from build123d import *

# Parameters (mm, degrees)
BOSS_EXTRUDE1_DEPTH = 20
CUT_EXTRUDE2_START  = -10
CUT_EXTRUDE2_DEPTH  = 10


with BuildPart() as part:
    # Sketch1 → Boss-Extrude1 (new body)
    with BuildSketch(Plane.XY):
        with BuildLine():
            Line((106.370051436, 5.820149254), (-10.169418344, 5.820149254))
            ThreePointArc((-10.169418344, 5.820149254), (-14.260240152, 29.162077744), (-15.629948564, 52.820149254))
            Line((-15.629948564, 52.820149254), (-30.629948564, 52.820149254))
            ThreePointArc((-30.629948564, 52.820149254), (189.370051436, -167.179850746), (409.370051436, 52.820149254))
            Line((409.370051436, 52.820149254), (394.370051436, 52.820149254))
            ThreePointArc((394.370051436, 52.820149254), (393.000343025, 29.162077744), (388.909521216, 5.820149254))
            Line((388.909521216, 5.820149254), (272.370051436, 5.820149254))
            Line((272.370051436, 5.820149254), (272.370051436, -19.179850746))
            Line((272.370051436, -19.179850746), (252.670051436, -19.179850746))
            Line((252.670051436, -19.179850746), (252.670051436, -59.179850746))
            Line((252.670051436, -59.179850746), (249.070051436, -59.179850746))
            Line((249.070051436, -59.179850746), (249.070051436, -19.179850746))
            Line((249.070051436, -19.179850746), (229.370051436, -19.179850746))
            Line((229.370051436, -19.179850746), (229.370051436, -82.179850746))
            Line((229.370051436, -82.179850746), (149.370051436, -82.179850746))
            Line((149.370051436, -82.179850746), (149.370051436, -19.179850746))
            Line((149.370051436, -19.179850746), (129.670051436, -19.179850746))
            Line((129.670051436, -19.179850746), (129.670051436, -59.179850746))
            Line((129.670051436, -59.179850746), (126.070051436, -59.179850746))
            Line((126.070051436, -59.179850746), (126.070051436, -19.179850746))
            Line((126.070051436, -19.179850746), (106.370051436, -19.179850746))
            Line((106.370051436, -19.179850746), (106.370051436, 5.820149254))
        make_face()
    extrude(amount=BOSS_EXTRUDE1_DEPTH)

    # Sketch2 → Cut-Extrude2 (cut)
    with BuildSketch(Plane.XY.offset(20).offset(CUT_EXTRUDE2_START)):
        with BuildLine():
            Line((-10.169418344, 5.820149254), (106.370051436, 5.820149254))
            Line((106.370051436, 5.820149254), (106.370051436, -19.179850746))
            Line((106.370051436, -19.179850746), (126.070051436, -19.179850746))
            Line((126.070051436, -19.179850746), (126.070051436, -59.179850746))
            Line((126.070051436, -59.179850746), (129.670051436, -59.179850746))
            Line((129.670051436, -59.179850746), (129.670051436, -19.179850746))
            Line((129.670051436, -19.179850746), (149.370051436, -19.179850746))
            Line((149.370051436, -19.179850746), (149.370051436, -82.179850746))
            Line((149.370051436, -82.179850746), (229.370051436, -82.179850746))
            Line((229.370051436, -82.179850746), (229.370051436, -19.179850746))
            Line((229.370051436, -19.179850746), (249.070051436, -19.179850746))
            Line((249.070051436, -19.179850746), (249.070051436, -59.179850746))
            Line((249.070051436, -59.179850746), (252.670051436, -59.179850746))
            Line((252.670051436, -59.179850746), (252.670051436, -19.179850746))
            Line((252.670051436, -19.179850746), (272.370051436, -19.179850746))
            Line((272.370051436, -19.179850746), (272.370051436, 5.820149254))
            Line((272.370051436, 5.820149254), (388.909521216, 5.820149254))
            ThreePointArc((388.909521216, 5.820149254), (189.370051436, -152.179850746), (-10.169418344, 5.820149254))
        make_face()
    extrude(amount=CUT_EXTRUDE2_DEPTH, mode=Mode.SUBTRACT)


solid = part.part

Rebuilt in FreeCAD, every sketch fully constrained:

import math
import FreeCAD as App
import Part
import Sketcher
from FreeCAD import Vector

doc = App.newDocument("Part")
body = doc.addObject("PartDesign::Body", "Body")

sketch1 = body.newObject("Sketcher::SketchObject", "Sketch")
sketch1.AttachmentSupport = (doc.getObject("XY_Plane"), [""])
sketch1.MapMode = "FlatFace"
sketch1.addGeometry([
    Part.LineSegment(Vector(106.4, 5.8, 0), Vector(-10.2, 5.8, 0)),
    Part.ArcOfCircle(Part.Circle(Vector(189.4, 52.8, 0), Vector(0, 0, 1), 205), math.radians(-180), math.radians(-166.75)),
    Part.LineSegment(Vector(-15.6, 52.8, 0), Vector(-30.6, 52.8, 0)),
    Part.ArcOfCircle(Part.Circle(Vector(189.4, 52.8, 0), Vector(0, 0, 1), 220), math.radians(180), math.radians(360)),
    Part.LineSegment(Vector(409.4, 52.8, 0), Vector(394.4, 52.8, 0)),
    Part.ArcOfCircle(Part.Circle(Vector(189.4, 52.8, 0), Vector(0, 0, 1), 205), math.radians(-13.25), math.radians(0)),
    Part.LineSegment(Vector(388.9, 5.8, 0), Vector(272.4, 5.8, 0)),
    Part.LineSegment(Vector(272.4, 5.8, 0), Vector(272.4, -19.2, 0)),
    Part.LineSegment(Vector(272.4, -19.2, 0), Vector(252.7, -19.2, 0)),
    Part.LineSegment(Vector(252.7, -19.2, 0), Vector(252.7, -59.2, 0)),
    Part.LineSegment(Vector(252.7, -59.2, 0), Vector(249.1, -59.2, 0)),
    Part.LineSegment(Vector(249.1, -59.2, 0), Vector(249.1, -19.2, 0)),
    Part.LineSegment(Vector(249.1, -19.2, 0), Vector(229.4, -19.2, 0)),
    Part.LineSegment(Vector(229.4, -19.2, 0), Vector(229.4, -82.2, 0)),
    Part.LineSegment(Vector(229.4, -82.2, 0), Vector(149.4, -82.2, 0)),
    Part.LineSegment(Vector(149.4, -82.2, 0), Vector(149.4, -19.2, 0)),
    Part.LineSegment(Vector(149.4, -19.2, 0), Vector(129.7, -19.2, 0)),
    Part.LineSegment(Vector(129.7, -19.2, 0), Vector(129.7, -59.2, 0)),
    Part.LineSegment(Vector(129.7, -59.2, 0), Vector(126.1, -59.2, 0)),
    Part.LineSegment(Vector(126.1, -59.2, 0), Vector(126.1, -19.2, 0)),
    Part.LineSegment(Vector(126.1, -19.2, 0), Vector(106.4, -19.2, 0)),
    Part.LineSegment(Vector(106.4, -19.2, 0), Vector(106.4, 5.8, 0)),
], False)
sketch1.addConstraint([
    Sketcher.Constraint("Coincident", 0, 2, 1, 2),
    Sketcher.Constraint("Coincident", 1, 1, 2, 1),
    Sketcher.Constraint("Coincident", 2, 2, 3, 1),
    Sketcher.Constraint("Coincident", 3, 2, 4, 1),
    Sketcher.Constraint("Coincident", 4, 2, 5, 2),
    Sketcher.Constraint("Coincident", 5, 1, 6, 1),
    Sketcher.Constraint("Coincident", 6, 2, 7, 1),
    Sketcher.Constraint("Coincident", 7, 2, 8, 1),
    Sketcher.Constraint("Coincident", 8, 2, 9, 1),
    Sketcher.Constraint("Coincident", 9, 2, 10, 1),
    Sketcher.Constraint("Coincident", 10, 2, 11, 1),
    Sketcher.Constraint("Coincident", 11, 2, 12, 1),
    Sketcher.Constraint("Coincident", 12, 2, 13, 1),
    Sketcher.Constraint("Coincident", 13, 2, 14, 1),
    Sketcher.Constraint("Coincident", 14, 2, 15, 1),
    Sketcher.Constraint("Coincident", 15, 2, 16, 1),
    Sketcher.Constraint("Coincident", 16, 2, 17, 1),
    Sketcher.Constraint("Coincident", 17, 2, 18, 1),
    Sketcher.Constraint("Coincident", 18, 2, 19, 1),
    Sketcher.Constraint("Coincident", 19, 2, 20, 1),
    Sketcher.Constraint("Coincident", 20, 2, 21, 1),
    Sketcher.Constraint("Coincident", 21, 2, 0, 1),
    Sketcher.Constraint("Horizontal", 0),
    Sketcher.Constraint("Horizontal", 2),
    Sketcher.Constraint("Horizontal", 4),
    Sketcher.Constraint("Horizontal", 6),
    Sketcher.Constraint("Vertical", 7),
    Sketcher.Constraint("Horizontal", 8),
    Sketcher.Constraint("Vertical", 9),
    Sketcher.Constraint("Horizontal", 10),
    Sketcher.Constraint("Vertical", 11),
    Sketcher.Constraint("Horizontal", 12),
    Sketcher.Constraint("Vertical", 13),
    Sketcher.Constraint("Horizontal", 14),
    Sketcher.Constraint("Vertical", 15),
    Sketcher.Constraint("Horizontal", 16),
    Sketcher.Constraint("Vertical", 17),
    Sketcher.Constraint("Horizontal", 18),
    Sketcher.Constraint("Vertical", 19),
    Sketcher.Constraint("Horizontal", 20),
    Sketcher.Constraint("Vertical", 21),
    Sketcher.Constraint("Coincident", 3, 3, 1, 3),
    Sketcher.Constraint("Coincident", 5, 3, 1, 3),
    Sketcher.Constraint("Equal", 1, 5),
    Sketcher.Constraint("Horizontal", 5, 3, 1, 1),
    Sketcher.Constraint("Horizontal", 2, 2, 3, 2),
    Sketcher.Constraint("Horizontal", 0, 2, 5, 1),
    Sketcher.Constraint("Horizontal", 8, 2, 11, 2),
    Sketcher.Constraint("Horizontal", 12, 2, 15, 2),
    Sketcher.Constraint("Horizontal", 10, 2, 17, 2),
    Sketcher.Constraint("Horizontal", 16, 2, 19, 2),
    Sketcher.Constraint("Equal", 0, 6),
    Sketcher.Constraint("Equal", 8, 12),
    Sketcher.Constraint("Equal", 12, 16),
    Sketcher.Constraint("Equal", 10, 18),
    Sketcher.Constraint("Equal", 16, 20),
    Sketcher.Constraint("Radius", 1, 205.0),
    Sketcher.Constraint("Radius", 3, 220.0),
    Sketcher.Constraint("DistanceX", 14, 2, 14, 1, 80.0),
    Sketcher.Constraint("DistanceY", 7, 2, 7, 1, 25.0),
    Sketcher.Constraint("DistanceY", 9, 2, 9, 1, 40.0),
    Sketcher.Constraint("DistanceY", 13, 2, 13, 1, 63.0),
    Sketcher.Constraint("DistanceX", 8, 2, 8, 1, 19.7),
    Sketcher.Constraint("DistanceX", 10, 2, 10, 1, 3.6),
    Sketcher.Constraint("DistanceY", 0, 2, 3, 3, 47.0),
    Sketcher.Constraint("DistanceX", -1, 1, 1, 3, 189.370052),
    Sketcher.Constraint("DistanceY", -1, 1, 1, 3, 52.820149),
])
pad1 = body.newObject("PartDesign::Pad", "Pad")
pad1.Profile = sketch1
pad1.Length = 20

sketch2 = body.newObject("Sketcher::SketchObject", "Sketch001")
sketch2.AttachmentSupport = (doc.getObject("XY_Plane"), [""])
sketch2.MapMode = "FlatFace"
sketch2.AttachmentOffset = App.Placement(Vector(0, 0, 10), App.Rotation())
sketch2.addGeometry([
    Part.LineSegment(Vector(106.4, 5.8, 0), Vector(-10.2, 5.8, 0)),
    Part.ArcOfCircle(Part.Circle(Vector(189.4, 52.8, 0), Vector(0, 0, 1), 205), math.radians(-167), math.radians(-13)),
    Part.LineSegment(Vector(388.9, 5.8, 0), Vector(272.4, 5.8, 0)),
    Part.LineSegment(Vector(272.4, 5.8, 0), Vector(272.4, -19.2, 0)),
    Part.LineSegment(Vector(272.4, -19.2, 0), Vector(252.7, -19.2, 0)),
    Part.LineSegment(Vector(252.7, -19.2, 0), Vector(252.7, -59.2, 0)),
    Part.LineSegment(Vector(252.7, -59.2, 0), Vector(249.1, -59.2, 0)),
    Part.LineSegment(Vector(249.1, -59.2, 0), Vector(249.1, -19.2, 0)),
    Part.LineSegment(Vector(249.1, -19.2, 0), Vector(229.4, -19.2, 0)),
    Part.LineSegment(Vector(229.4, -19.2, 0), Vector(229.4, -82.2, 0)),
    Part.LineSegment(Vector(229.4, -82.2, 0), Vector(149.4, -82.2, 0)),
    Part.LineSegment(Vector(149.4, -82.2, 0), Vector(149.4, -19.2, 0)),
    Part.LineSegment(Vector(149.4, -19.2, 0), Vector(129.7, -19.2, 0)),
    Part.LineSegment(Vector(129.7, -19.2, 0), Vector(129.7, -59.2, 0)),
    Part.LineSegment(Vector(129.7, -59.2, 0), Vector(126.1, -59.2, 0)),
    Part.LineSegment(Vector(126.1, -59.2, 0), Vector(126.1, -19.2, 0)),
    Part.LineSegment(Vector(126.1, -19.2, 0), Vector(106.4, -19.2, 0)),
    Part.LineSegment(Vector(106.4, -19.2, 0), Vector(106.4, 5.8, 0)),
], False)
sketch2.addConstraint([
    Sketcher.Constraint("Coincident", 0, 2, 1, 1),
    Sketcher.Constraint("Coincident", 1, 2, 2, 1),
    Sketcher.Constraint("Coincident", 2, 2, 3, 1),
    Sketcher.Constraint("Coincident", 3, 2, 4, 1),
    Sketcher.Constraint("Coincident", 4, 2, 5, 1),
    Sketcher.Constraint("Coincident", 5, 2, 6, 1),
    Sketcher.Constraint("Coincident", 6, 2, 7, 1),
    Sketcher.Constraint("Coincident", 7, 2, 8, 1),
    Sketcher.Constraint("Coincident", 8, 2, 9, 1),
    Sketcher.Constraint("Coincident", 9, 2, 10, 1),
    Sketcher.Constraint("Coincident", 10, 2, 11, 1),
    Sketcher.Constraint("Coincident", 11, 2, 12, 1),
    Sketcher.Constraint("Coincident", 12, 2, 13, 1),
    Sketcher.Constraint("Coincident", 13, 2, 14, 1),
    Sketcher.Constraint("Coincident", 14, 2, 15, 1),
    Sketcher.Constraint("Coincident", 15, 2, 16, 1),
    Sketcher.Constraint("Coincident", 16, 2, 17, 1),
    Sketcher.Constraint("Coincident", 17, 2, 0, 1),
    Sketcher.Constraint("Horizontal", 0),
    Sketcher.Constraint("Horizontal", 2),
    Sketcher.Constraint("Vertical", 3),
    Sketcher.Constraint("Horizontal", 4),
    Sketcher.Constraint("Vertical", 5),
    Sketcher.Constraint("Horizontal", 6),
    Sketcher.Constraint("Vertical", 7),
    Sketcher.Constraint("Horizontal", 8),
    Sketcher.Constraint("Vertical", 9),
    Sketcher.Constraint("Horizontal", 10),
    Sketcher.Constraint("Vertical", 11),
    Sketcher.Constraint("Horizontal", 12),
    Sketcher.Constraint("Vertical", 13),
    Sketcher.Constraint("Horizontal", 14),
    Sketcher.Constraint("Vertical", 15),
    Sketcher.Constraint("Horizontal", 16),
    Sketcher.Constraint("Vertical", 17),
    Sketcher.Constraint("Horizontal", 0, 2, 1, 2),
    Sketcher.Constraint("Horizontal", 4, 2, 7, 2),
    Sketcher.Constraint("Horizontal", 8, 2, 11, 2),
    Sketcher.Constraint("Horizontal", 6, 2, 13, 2),
    Sketcher.Constraint("Horizontal", 12, 2, 15, 2),
    Sketcher.Constraint("Equal", 0, 2),
    Sketcher.Constraint("Equal", 4, 8),
    Sketcher.Constraint("Equal", 8, 12),
    Sketcher.Constraint("Equal", 6, 14),
    Sketcher.Constraint("Equal", 12, 16),
    Sketcher.Constraint("Radius", 1, 205.0),
    Sketcher.Constraint("DistanceX", 10, 2, 10, 1, 80.0),
    Sketcher.Constraint("DistanceY", 3, 2, 3, 1, 25.0),
    Sketcher.Constraint("DistanceY", 5, 2, 5, 1, 40.0),
    Sketcher.Constraint("DistanceY", 9, 2, 9, 1, 63.0),
    Sketcher.Constraint("DistanceX", 4, 2, 4, 1, 19.7),
    Sketcher.Constraint("DistanceX", 6, 2, 6, 1, 3.6),
    Sketcher.Constraint("DistanceY", 0, 2, 1, 3, 47.0),
    Sketcher.Constraint("DistanceX", -1, 1, 1, 3, 189.370051),
    Sketcher.Constraint("DistanceY", -1, 1, 1, 3, 52.820149),
])
pocket1 = body.newObject("PartDesign::Pocket", "Pocket")
pocket1.Profile = sketch2
pocket1.Length = 10
pocket1.Reversed = True

doc.recompute()
